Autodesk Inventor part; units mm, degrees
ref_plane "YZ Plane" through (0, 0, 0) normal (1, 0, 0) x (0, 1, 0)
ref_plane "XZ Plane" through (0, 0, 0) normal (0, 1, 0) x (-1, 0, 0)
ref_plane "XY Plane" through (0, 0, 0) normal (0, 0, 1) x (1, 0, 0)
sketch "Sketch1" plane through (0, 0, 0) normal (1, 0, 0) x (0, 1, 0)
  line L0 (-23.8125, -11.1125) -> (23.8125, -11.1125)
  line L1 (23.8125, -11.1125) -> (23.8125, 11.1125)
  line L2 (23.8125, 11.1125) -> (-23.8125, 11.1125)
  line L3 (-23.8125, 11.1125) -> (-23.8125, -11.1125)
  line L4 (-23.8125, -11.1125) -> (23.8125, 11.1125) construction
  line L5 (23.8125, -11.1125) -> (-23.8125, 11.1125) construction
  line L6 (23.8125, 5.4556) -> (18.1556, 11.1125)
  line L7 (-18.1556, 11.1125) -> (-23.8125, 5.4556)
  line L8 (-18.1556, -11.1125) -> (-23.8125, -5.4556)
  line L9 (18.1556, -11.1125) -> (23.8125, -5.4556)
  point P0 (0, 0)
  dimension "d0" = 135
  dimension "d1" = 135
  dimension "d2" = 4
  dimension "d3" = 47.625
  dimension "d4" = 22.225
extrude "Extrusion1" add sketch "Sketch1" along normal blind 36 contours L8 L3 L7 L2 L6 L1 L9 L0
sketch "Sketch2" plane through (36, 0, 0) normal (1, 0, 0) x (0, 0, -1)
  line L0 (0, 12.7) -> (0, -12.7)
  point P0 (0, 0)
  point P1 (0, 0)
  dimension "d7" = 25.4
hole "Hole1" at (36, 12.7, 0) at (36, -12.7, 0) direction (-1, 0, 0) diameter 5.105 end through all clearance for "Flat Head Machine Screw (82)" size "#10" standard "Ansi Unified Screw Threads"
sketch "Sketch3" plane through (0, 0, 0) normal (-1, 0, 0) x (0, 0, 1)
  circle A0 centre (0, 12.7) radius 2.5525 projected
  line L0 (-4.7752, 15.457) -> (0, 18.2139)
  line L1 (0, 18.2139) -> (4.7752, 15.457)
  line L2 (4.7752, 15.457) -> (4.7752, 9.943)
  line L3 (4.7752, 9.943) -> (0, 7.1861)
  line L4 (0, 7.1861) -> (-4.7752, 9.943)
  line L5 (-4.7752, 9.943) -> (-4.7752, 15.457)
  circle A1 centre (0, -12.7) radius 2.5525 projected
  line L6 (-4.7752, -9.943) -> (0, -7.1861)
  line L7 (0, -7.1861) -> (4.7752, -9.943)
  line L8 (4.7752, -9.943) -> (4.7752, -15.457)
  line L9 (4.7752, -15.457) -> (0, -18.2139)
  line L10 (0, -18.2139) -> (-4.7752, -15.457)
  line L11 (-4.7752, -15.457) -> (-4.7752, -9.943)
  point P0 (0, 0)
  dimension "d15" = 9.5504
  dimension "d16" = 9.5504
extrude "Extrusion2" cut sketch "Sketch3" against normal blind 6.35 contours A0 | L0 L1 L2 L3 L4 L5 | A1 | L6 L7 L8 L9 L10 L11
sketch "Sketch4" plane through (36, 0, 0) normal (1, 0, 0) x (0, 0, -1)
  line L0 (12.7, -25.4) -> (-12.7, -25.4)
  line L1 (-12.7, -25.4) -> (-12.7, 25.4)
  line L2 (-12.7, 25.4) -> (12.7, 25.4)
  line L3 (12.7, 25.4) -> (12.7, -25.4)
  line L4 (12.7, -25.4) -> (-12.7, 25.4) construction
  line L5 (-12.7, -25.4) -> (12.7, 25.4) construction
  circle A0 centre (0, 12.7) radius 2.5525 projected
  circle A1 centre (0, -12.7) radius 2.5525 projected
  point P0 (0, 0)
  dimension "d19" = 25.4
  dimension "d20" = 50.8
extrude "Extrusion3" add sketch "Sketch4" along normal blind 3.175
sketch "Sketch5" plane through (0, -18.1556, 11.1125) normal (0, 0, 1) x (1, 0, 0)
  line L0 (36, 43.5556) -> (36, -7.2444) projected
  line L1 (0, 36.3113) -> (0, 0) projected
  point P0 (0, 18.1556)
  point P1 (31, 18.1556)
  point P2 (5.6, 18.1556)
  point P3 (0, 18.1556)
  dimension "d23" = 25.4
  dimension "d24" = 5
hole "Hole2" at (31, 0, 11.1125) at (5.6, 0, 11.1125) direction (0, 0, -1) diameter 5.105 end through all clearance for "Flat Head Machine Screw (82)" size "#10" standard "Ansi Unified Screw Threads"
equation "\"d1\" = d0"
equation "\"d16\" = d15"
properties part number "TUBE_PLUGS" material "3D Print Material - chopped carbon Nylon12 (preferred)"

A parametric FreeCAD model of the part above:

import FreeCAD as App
import Part
import Sketcher

V = App.Vector
Q = App.Units.Quantity


def add_polygon(sketch, points):
    """Adds a closed chain of lines whose ends are joined by coincident constraints."""
    first, n = sketch.GeometryCount, len(points)
    for a, b in zip(points, points[1:] + points[:1]):
        sketch.addGeometry(Part.LineSegment(App.Vector(*a, 0), App.Vector(*b, 0)), False)
    for i in range(n):
        sketch.addConstraint(Sketcher.Constraint("Coincident", first + i, 2, first + (i + 1) % n, 1))

doc = App.newDocument("Part")
body = doc.addObject("PartDesign::Body", "Body")

sketch1 = body.newObject("Sketcher::SketchObject", "Sketch")
sketch1.AttachmentSupport = (doc.getObject("YZ_Plane"), [""])
sketch1.MapMode = "FlatFace"
add_polygon(sketch1, [(-23.8125, -5.4556), (-18.1556, -11.1125), (18.1556, -11.1125), (23.8125, -5.4556), (23.8125, 5.4556), (18.1556, 11.1125), (-18.1556, 11.1125), (-23.8125, 5.4556)])
sketch1.addConstraint(Sketcher.Constraint("Horizontal", 1))
sketch1.addConstraint(Sketcher.Constraint("Vertical", 3))
sketch1.addConstraint(Sketcher.Constraint("Horizontal", 5))
sketch1.addConstraint(Sketcher.Constraint("Vertical", 7))
sketch1.addConstraint(Sketcher.Constraint("Symmetric", 0, 2, 4, 2, -1, 1))
sketch1.addConstraint(Sketcher.Constraint("Symmetric", 2, 2, 6, 2, -1, 1))
sketch1.addConstraint(Sketcher.Constraint("Perpendicular", 0, 2))
sketch1.addConstraint(Sketcher.Constraint("Perpendicular", 2, 4))
sketch1.addConstraint(Sketcher.Constraint("Perpendicular", 4, 6))
sketch1.addConstraint(Sketcher.Constraint("Horizontal", 3, 2, 6, 2))
sketch1.addConstraint(Sketcher.Constraint("Vertical", 1, 2, 4, 2))
sketch1.addConstraint(Sketcher.Constraint("DistanceY", 1, 2, 4, 2, Q("0.875 in")))
sketch1.addConstraint(Sketcher.Constraint("DistanceX", 6, 2, 3, 2, Q("1.875 in")))
sketch1.addConstraint(Sketcher.Constraint("DistanceX", 1, 1, 1, 2, Q("36.3112 mm")))
pad1 = body.newObject("PartDesign::Pad", "Pad")
pad1.Profile = sketch1
pad1.Length = 36

sketch2 = body.newObject("Sketcher::SketchObject", "Sketch001")
sketch2.AttachmentSupport = (doc.getObject("YZ_Plane"), [""])
sketch2.MapMode = "FlatFace"
sketch2.AttachmentOffset = App.Placement(V(0, 0, 36), App.Rotation())
sketch2.addGeometry(Part.Circle(V(12.7, 0, 0), V(0, 0, 1), 2.5525), False)
sketch2.addGeometry(Part.Circle(V(-12.7, 0, 0), V(0, 0, 1), 2.5525), False)
sketch2.addConstraint(Sketcher.Constraint("Equal", 0, 1))
sketch2.addConstraint(Sketcher.Constraint("Symmetric", 0, 3, 1, 3, -1, 1))
sketch2.addConstraint(Sketcher.Constraint("PointOnObject", 0, 3, -1))
sketch2.addConstraint(Sketcher.Constraint("DistanceX", 1, 3, 0, 3, Q("1 in")))
sketch2.addConstraint(Sketcher.Constraint("Diameter", 0, Q("5.105 mm")))
doc.recompute()
hole = body.newObject("PartDesign::Hole", "Hole")
hole.Profile = sketch2
hole.ThreadType = "None"
hole.Diameter = 5.105
hole.DepthType = "ThroughAll"

sketch3 = body.newObject("Sketcher::SketchObject", "Sketch002")
sketch3.AttachmentSupport = (doc.getObject("YZ_Plane"), [""])
sketch3.MapMode = "FlatFace"
add_polygon(sketch3, [(18.2139, 0), (15.457, -4.7752), (9.943, -4.7752), (7.1861, 0), (9.943, 4.7752), (15.457, 4.7752)])
add_polygon(sketch3, [(-7.1861, 0), (-9.943, -4.7752), (-15.457, -4.7752), (-18.2139, 0), (-15.457, 4.7752), (-9.943, 4.7752)])
sketch3.addConstraint(Sketcher.Constraint("Horizontal", 1))
sketch3.addConstraint(Sketcher.Constraint("Horizontal", 4))
sketch3.addConstraint(Sketcher.Constraint("Horizontal", 7))
sketch3.addConstraint(Sketcher.Constraint("Horizontal", 10))
sketch3.addConstraint(Sketcher.Constraint("Symmetric", 3, 2, 6, 2, -1, 1))
sketch3.addConstraint(Sketcher.Constraint("Symmetric", 5, 2, 8, 2, -1, 1))
sketch3.addConstraint(Sketcher.Constraint("Symmetric", 0, 2, 9, 2, -1, 1))
sketch3.addConstraint(Sketcher.Constraint("Symmetric", 2, 2, 11, 2, -1, 1))
sketch3.addConstraint(Sketcher.Constraint("Symmetric", 1, 2, 6, 2, -2))
sketch3.addConstraint(Sketcher.Constraint("PointOnObject", 2, 2, -1))
sketch3.addConstraint(Sketcher.Constraint("PointOnObject", 5, 2, -1))
sketch3.addConstraint(Sketcher.Constraint("Parallel", 0, 3))
sketch3.addConstraint(Sketcher.Constraint("Parallel", 2, 5))
sketch3.addConstraint(Sketcher.Constraint("Parallel", 5, 8))
sketch3.addConstraint(Sketcher.Constraint("Parallel", 8, 11))
sketch3.addConstraint(Sketcher.Constraint("Angle", 0, Q("-119.9994 deg")))
sketch3.addConstraint(Sketcher.Constraint("DistanceY", 1, 2, 3, 2, Q("0.376 in")))
sketch3.addConstraint(Sketcher.Constraint("DistanceX", 6, 2, 0, 2, Q("1 in")))
sketch3.addConstraint(Sketcher.Constraint("DistanceX", 1, 2, 1, 1, Q("5.514 mm")))
pocket1 = body.newObject("PartDesign::Pocket", "Pocket")
pocket1.Profile = sketch3
pocket1.Length = Q("0.25 in")
pocket1.Reversed = True

sketch4 = body.newObject("Sketcher::SketchObject", "Sketch003")
sketch4.AttachmentSupport = (doc.getObject("YZ_Plane"), [""])
sketch4.MapMode = "FlatFace"
sketch4.AttachmentOffset = App.Placement(V(0, 0, 36), App.Rotation())
add_polygon(sketch4, [(-25.4, 12.7), (-25.4, -12.7), (25.4, -12.7), (25.4, 12.7)])
sketch4.addGeometry(Part.Circle(V(-12.7, 0, 0), V(0, 0, 1), 2.5525), False)
sketch4.addGeometry(Part.Circle(V(12.7, 0, 0), V(0, 0, 1), 2.5525), False)
sketch4.addConstraint(Sketcher.Constraint("Vertical", 0))
sketch4.addConstraint(Sketcher.Constraint("Horizontal", 1))
sketch4.addConstraint(Sketcher.Constraint("Vertical", 2))
sketch4.addConstraint(Sketcher.Constraint("Horizontal", 3))
sketch4.addConstraint(Sketcher.Constraint("Equal", 4, 5))
sketch4.addConstraint(Sketcher.Constraint("Symmetric", 4, 3, 5, 3, -1, 1))
sketch4.addConstraint(Sketcher.Constraint("Symmetric", 0, 2, 2, 2, -1, 1))
sketch4.addConstraint(Sketcher.Constraint("PointOnObject", 4, 3, -1))
sketch4.addConstraint(Sketcher.Constraint("DistanceX", 1, 1, 1, 2, Q("2 in")))
sketch4.addConstraint(Sketcher.Constraint("DistanceY", 0, 2, 0, 1, Q("1 in")))
sketch4.addConstraint(Sketcher.Constraint("DistanceX", 4, 3, 5, 3, Q("1 in")))
sketch4.addConstraint(Sketcher.Constraint("Diameter", 4, Q("5.105 mm")))
pad2 = body.newObject("PartDesign::Pad", "Pad001")
pad2.Profile = sketch4
pad2.Length = Q("0.125 in")

sketch5 = body.newObject("Sketcher::SketchObject", "Sketch004")
sketch5.AttachmentSupport = (doc.getObject("XY_Plane"), [""])
sketch5.MapMode = "FlatFace"
sketch5.AttachmentOffset = App.Placement(V(0, 0, 0.4375 * 25.4), App.Rotation())
sketch5.addGeometry(Part.Circle(V(31, 0, 0), V(0, 0, 1), 2.5525), False)
sketch5.addGeometry(Part.Circle(V(5.6, 0, 0), V(0, 0, 1), 2.5525), False)
sketch5.addConstraint(Sketcher.Constraint("Equal", 0, 1))
sketch5.addConstraint(Sketcher.Constraint("PointOnObject", 0, 3, -1))
sketch5.addConstraint(Sketcher.Constraint("PointOnObject", 1, 3, -1))
sketch5.addConstraint(Sketcher.Constraint("DistanceX", 1, 3, 0, 3, Q("1 in")))
sketch5.addConstraint(Sketcher.Constraint("Diameter", 0, Q("5.105 mm")))
sketch5.addConstraint(Sketcher.Constraint("DistanceX", -1, 1, 0, 3, Q("31 mm")))
doc.recompute()
hole2 = body.newObject("PartDesign::Hole", "Hole001")
hole2.Profile = sketch5
hole2.ThreadType = "None"
hole2.Diameter = 5.105
hole2.DepthType = "ThroughAll"

doc.recompute()
